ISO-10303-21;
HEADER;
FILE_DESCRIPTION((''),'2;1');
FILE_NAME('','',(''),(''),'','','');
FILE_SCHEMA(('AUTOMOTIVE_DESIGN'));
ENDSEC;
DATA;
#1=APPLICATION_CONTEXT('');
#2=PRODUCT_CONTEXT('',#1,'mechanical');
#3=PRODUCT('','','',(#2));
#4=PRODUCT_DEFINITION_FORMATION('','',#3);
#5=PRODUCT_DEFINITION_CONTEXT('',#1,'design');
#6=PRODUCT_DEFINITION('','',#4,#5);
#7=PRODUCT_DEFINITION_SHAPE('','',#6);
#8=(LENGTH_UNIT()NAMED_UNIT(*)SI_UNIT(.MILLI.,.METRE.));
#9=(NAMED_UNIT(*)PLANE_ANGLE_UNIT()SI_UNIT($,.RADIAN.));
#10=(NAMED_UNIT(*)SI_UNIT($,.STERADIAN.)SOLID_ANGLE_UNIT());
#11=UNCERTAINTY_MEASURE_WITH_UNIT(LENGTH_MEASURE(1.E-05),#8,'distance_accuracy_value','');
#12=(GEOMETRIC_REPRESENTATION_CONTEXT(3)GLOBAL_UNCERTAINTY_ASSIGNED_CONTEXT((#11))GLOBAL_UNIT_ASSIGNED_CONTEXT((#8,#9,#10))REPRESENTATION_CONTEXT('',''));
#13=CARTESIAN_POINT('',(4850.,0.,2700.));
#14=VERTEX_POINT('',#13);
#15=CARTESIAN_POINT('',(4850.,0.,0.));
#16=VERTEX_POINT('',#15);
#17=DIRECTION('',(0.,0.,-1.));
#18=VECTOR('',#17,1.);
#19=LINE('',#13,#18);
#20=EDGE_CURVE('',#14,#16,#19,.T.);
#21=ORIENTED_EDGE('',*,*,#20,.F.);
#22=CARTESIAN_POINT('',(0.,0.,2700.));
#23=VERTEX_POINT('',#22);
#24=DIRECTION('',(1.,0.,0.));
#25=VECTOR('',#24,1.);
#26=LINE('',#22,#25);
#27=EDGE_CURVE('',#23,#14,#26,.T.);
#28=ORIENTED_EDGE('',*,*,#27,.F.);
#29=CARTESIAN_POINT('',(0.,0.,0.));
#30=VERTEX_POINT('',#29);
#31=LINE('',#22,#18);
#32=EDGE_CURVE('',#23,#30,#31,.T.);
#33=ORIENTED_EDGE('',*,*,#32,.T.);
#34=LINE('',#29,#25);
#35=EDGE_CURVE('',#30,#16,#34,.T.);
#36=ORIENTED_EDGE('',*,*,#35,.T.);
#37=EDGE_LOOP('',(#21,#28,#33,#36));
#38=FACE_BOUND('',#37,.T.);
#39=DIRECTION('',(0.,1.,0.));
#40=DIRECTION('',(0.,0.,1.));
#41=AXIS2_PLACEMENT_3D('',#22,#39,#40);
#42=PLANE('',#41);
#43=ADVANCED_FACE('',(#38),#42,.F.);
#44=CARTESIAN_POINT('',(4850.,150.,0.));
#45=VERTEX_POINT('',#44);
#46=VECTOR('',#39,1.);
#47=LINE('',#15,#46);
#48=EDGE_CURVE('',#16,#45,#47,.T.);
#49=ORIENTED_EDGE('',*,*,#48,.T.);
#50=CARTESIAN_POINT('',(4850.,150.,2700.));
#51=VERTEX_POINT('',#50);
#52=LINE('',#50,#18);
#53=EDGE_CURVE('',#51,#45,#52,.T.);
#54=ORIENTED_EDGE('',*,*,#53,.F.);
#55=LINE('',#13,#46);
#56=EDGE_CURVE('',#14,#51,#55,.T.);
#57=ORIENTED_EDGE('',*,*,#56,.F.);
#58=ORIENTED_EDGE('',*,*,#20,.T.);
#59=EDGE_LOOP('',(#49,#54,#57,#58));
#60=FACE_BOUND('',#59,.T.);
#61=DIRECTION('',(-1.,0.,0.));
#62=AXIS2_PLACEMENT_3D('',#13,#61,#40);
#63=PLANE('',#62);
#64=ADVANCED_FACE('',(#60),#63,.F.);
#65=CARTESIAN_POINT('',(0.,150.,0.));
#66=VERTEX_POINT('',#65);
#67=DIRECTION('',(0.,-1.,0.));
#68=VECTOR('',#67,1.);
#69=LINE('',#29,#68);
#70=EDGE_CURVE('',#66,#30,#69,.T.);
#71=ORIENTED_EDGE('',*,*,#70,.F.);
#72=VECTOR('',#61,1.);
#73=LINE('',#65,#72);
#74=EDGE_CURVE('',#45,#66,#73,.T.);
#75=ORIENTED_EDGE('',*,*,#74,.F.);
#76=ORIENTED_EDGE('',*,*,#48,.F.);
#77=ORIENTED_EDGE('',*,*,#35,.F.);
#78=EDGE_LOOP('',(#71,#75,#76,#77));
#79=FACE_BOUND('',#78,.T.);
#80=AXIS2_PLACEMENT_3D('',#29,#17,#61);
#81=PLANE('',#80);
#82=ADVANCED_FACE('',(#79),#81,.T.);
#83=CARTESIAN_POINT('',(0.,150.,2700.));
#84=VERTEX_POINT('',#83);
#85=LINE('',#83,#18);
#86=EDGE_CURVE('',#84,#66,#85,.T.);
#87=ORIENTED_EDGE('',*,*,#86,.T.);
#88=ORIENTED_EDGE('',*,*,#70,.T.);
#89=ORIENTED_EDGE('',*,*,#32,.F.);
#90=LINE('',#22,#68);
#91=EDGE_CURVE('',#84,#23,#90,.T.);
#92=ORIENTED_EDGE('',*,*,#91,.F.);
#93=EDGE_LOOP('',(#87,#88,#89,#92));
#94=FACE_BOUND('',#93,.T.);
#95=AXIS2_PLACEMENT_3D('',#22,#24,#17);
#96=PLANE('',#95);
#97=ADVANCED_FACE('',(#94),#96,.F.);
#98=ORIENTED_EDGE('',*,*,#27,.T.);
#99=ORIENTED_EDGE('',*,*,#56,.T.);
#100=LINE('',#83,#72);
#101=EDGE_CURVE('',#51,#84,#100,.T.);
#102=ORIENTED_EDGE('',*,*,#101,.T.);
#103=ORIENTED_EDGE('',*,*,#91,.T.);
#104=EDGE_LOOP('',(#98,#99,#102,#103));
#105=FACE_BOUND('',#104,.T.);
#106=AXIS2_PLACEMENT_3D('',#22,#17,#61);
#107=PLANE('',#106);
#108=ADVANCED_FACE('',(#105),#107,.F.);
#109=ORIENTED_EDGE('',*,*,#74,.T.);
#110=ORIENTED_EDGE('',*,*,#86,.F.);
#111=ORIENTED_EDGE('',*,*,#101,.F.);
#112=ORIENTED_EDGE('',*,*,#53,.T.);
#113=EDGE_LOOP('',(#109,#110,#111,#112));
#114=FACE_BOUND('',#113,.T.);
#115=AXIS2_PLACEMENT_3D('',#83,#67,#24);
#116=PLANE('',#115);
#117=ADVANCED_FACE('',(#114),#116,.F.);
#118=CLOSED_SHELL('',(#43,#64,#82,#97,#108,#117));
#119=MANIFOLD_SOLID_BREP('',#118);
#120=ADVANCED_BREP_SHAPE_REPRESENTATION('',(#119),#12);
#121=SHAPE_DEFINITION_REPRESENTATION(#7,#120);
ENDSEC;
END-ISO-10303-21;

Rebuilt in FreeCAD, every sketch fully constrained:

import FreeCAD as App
import Part
import Sketcher
Q = App.Units.Quantity


def add_polygon(sketch, points):
    """Adds a closed chain of lines whose ends are joined by coincident constraints."""
    first, n = sketch.GeometryCount, len(points)
    for a, b in zip(points, points[1:] + points[:1]):
        sketch.addGeometry(Part.LineSegment(App.Vector(*a, 0), App.Vector(*b, 0)), False)
    for i in range(n):
        sketch.addConstraint(Sketcher.Constraint("Coincident", first + i, 2, first + (i + 1) % n, 1))

doc = App.newDocument("Part")
params = doc.addObject("Spreadsheet::Sheet", "Params")
for row, (alias, value) in enumerate([
    ("sketch1_width", "4850 mm"),
    ("sketch1_height", "150 mm"),
    ("pad1_length", "2700 mm"),
], start=1):
    params.set(f"A{row}", alias)
    params.set(f"B{row}", "=" + value)
    params.setAlias(f"B{row}", alias)

body = doc.addObject("PartDesign::Body", "Body")

# Sketch on XY plane
sketch1 = body.newObject("Sketcher::SketchObject", "Sketch")
sketch1.AttachmentSupport = (doc.getObject("XY_Plane"), [""])
sketch1.MapMode = "FlatFace"
add_polygon(sketch1, [(0, 150), (0, 0), (4850, 0), (4850, 150)])  # lines 0-3
sketch1.addConstraint(Sketcher.Constraint("Vertical", 0))
sketch1.addConstraint(Sketcher.Constraint("Horizontal", 1))
sketch1.addConstraint(Sketcher.Constraint("Vertical", 2))
sketch1.addConstraint(Sketcher.Constraint("Horizontal", 3))
sketch1.addConstraint(Sketcher.Constraint("Coincident", 0, 2, -1, 1))
sketch1.addConstraint(Sketcher.Constraint("DistanceX", 1, 1, 1, 2, Q("4850 mm")))
sketch1.addConstraint(Sketcher.Constraint("DistanceY", 0, 2, 0, 1, Q("150 mm")))
sketch1.setExpression("Constraints[9]", "Params.sketch1_width")
sketch1.setExpression("Constraints[10]", "Params.sketch1_height")
pad1 = body.newObject("PartDesign::Pad", "Pad")
pad1.Profile = sketch1
pad1.setExpression("Length", "Params.pad1_length")

doc.recompute()
